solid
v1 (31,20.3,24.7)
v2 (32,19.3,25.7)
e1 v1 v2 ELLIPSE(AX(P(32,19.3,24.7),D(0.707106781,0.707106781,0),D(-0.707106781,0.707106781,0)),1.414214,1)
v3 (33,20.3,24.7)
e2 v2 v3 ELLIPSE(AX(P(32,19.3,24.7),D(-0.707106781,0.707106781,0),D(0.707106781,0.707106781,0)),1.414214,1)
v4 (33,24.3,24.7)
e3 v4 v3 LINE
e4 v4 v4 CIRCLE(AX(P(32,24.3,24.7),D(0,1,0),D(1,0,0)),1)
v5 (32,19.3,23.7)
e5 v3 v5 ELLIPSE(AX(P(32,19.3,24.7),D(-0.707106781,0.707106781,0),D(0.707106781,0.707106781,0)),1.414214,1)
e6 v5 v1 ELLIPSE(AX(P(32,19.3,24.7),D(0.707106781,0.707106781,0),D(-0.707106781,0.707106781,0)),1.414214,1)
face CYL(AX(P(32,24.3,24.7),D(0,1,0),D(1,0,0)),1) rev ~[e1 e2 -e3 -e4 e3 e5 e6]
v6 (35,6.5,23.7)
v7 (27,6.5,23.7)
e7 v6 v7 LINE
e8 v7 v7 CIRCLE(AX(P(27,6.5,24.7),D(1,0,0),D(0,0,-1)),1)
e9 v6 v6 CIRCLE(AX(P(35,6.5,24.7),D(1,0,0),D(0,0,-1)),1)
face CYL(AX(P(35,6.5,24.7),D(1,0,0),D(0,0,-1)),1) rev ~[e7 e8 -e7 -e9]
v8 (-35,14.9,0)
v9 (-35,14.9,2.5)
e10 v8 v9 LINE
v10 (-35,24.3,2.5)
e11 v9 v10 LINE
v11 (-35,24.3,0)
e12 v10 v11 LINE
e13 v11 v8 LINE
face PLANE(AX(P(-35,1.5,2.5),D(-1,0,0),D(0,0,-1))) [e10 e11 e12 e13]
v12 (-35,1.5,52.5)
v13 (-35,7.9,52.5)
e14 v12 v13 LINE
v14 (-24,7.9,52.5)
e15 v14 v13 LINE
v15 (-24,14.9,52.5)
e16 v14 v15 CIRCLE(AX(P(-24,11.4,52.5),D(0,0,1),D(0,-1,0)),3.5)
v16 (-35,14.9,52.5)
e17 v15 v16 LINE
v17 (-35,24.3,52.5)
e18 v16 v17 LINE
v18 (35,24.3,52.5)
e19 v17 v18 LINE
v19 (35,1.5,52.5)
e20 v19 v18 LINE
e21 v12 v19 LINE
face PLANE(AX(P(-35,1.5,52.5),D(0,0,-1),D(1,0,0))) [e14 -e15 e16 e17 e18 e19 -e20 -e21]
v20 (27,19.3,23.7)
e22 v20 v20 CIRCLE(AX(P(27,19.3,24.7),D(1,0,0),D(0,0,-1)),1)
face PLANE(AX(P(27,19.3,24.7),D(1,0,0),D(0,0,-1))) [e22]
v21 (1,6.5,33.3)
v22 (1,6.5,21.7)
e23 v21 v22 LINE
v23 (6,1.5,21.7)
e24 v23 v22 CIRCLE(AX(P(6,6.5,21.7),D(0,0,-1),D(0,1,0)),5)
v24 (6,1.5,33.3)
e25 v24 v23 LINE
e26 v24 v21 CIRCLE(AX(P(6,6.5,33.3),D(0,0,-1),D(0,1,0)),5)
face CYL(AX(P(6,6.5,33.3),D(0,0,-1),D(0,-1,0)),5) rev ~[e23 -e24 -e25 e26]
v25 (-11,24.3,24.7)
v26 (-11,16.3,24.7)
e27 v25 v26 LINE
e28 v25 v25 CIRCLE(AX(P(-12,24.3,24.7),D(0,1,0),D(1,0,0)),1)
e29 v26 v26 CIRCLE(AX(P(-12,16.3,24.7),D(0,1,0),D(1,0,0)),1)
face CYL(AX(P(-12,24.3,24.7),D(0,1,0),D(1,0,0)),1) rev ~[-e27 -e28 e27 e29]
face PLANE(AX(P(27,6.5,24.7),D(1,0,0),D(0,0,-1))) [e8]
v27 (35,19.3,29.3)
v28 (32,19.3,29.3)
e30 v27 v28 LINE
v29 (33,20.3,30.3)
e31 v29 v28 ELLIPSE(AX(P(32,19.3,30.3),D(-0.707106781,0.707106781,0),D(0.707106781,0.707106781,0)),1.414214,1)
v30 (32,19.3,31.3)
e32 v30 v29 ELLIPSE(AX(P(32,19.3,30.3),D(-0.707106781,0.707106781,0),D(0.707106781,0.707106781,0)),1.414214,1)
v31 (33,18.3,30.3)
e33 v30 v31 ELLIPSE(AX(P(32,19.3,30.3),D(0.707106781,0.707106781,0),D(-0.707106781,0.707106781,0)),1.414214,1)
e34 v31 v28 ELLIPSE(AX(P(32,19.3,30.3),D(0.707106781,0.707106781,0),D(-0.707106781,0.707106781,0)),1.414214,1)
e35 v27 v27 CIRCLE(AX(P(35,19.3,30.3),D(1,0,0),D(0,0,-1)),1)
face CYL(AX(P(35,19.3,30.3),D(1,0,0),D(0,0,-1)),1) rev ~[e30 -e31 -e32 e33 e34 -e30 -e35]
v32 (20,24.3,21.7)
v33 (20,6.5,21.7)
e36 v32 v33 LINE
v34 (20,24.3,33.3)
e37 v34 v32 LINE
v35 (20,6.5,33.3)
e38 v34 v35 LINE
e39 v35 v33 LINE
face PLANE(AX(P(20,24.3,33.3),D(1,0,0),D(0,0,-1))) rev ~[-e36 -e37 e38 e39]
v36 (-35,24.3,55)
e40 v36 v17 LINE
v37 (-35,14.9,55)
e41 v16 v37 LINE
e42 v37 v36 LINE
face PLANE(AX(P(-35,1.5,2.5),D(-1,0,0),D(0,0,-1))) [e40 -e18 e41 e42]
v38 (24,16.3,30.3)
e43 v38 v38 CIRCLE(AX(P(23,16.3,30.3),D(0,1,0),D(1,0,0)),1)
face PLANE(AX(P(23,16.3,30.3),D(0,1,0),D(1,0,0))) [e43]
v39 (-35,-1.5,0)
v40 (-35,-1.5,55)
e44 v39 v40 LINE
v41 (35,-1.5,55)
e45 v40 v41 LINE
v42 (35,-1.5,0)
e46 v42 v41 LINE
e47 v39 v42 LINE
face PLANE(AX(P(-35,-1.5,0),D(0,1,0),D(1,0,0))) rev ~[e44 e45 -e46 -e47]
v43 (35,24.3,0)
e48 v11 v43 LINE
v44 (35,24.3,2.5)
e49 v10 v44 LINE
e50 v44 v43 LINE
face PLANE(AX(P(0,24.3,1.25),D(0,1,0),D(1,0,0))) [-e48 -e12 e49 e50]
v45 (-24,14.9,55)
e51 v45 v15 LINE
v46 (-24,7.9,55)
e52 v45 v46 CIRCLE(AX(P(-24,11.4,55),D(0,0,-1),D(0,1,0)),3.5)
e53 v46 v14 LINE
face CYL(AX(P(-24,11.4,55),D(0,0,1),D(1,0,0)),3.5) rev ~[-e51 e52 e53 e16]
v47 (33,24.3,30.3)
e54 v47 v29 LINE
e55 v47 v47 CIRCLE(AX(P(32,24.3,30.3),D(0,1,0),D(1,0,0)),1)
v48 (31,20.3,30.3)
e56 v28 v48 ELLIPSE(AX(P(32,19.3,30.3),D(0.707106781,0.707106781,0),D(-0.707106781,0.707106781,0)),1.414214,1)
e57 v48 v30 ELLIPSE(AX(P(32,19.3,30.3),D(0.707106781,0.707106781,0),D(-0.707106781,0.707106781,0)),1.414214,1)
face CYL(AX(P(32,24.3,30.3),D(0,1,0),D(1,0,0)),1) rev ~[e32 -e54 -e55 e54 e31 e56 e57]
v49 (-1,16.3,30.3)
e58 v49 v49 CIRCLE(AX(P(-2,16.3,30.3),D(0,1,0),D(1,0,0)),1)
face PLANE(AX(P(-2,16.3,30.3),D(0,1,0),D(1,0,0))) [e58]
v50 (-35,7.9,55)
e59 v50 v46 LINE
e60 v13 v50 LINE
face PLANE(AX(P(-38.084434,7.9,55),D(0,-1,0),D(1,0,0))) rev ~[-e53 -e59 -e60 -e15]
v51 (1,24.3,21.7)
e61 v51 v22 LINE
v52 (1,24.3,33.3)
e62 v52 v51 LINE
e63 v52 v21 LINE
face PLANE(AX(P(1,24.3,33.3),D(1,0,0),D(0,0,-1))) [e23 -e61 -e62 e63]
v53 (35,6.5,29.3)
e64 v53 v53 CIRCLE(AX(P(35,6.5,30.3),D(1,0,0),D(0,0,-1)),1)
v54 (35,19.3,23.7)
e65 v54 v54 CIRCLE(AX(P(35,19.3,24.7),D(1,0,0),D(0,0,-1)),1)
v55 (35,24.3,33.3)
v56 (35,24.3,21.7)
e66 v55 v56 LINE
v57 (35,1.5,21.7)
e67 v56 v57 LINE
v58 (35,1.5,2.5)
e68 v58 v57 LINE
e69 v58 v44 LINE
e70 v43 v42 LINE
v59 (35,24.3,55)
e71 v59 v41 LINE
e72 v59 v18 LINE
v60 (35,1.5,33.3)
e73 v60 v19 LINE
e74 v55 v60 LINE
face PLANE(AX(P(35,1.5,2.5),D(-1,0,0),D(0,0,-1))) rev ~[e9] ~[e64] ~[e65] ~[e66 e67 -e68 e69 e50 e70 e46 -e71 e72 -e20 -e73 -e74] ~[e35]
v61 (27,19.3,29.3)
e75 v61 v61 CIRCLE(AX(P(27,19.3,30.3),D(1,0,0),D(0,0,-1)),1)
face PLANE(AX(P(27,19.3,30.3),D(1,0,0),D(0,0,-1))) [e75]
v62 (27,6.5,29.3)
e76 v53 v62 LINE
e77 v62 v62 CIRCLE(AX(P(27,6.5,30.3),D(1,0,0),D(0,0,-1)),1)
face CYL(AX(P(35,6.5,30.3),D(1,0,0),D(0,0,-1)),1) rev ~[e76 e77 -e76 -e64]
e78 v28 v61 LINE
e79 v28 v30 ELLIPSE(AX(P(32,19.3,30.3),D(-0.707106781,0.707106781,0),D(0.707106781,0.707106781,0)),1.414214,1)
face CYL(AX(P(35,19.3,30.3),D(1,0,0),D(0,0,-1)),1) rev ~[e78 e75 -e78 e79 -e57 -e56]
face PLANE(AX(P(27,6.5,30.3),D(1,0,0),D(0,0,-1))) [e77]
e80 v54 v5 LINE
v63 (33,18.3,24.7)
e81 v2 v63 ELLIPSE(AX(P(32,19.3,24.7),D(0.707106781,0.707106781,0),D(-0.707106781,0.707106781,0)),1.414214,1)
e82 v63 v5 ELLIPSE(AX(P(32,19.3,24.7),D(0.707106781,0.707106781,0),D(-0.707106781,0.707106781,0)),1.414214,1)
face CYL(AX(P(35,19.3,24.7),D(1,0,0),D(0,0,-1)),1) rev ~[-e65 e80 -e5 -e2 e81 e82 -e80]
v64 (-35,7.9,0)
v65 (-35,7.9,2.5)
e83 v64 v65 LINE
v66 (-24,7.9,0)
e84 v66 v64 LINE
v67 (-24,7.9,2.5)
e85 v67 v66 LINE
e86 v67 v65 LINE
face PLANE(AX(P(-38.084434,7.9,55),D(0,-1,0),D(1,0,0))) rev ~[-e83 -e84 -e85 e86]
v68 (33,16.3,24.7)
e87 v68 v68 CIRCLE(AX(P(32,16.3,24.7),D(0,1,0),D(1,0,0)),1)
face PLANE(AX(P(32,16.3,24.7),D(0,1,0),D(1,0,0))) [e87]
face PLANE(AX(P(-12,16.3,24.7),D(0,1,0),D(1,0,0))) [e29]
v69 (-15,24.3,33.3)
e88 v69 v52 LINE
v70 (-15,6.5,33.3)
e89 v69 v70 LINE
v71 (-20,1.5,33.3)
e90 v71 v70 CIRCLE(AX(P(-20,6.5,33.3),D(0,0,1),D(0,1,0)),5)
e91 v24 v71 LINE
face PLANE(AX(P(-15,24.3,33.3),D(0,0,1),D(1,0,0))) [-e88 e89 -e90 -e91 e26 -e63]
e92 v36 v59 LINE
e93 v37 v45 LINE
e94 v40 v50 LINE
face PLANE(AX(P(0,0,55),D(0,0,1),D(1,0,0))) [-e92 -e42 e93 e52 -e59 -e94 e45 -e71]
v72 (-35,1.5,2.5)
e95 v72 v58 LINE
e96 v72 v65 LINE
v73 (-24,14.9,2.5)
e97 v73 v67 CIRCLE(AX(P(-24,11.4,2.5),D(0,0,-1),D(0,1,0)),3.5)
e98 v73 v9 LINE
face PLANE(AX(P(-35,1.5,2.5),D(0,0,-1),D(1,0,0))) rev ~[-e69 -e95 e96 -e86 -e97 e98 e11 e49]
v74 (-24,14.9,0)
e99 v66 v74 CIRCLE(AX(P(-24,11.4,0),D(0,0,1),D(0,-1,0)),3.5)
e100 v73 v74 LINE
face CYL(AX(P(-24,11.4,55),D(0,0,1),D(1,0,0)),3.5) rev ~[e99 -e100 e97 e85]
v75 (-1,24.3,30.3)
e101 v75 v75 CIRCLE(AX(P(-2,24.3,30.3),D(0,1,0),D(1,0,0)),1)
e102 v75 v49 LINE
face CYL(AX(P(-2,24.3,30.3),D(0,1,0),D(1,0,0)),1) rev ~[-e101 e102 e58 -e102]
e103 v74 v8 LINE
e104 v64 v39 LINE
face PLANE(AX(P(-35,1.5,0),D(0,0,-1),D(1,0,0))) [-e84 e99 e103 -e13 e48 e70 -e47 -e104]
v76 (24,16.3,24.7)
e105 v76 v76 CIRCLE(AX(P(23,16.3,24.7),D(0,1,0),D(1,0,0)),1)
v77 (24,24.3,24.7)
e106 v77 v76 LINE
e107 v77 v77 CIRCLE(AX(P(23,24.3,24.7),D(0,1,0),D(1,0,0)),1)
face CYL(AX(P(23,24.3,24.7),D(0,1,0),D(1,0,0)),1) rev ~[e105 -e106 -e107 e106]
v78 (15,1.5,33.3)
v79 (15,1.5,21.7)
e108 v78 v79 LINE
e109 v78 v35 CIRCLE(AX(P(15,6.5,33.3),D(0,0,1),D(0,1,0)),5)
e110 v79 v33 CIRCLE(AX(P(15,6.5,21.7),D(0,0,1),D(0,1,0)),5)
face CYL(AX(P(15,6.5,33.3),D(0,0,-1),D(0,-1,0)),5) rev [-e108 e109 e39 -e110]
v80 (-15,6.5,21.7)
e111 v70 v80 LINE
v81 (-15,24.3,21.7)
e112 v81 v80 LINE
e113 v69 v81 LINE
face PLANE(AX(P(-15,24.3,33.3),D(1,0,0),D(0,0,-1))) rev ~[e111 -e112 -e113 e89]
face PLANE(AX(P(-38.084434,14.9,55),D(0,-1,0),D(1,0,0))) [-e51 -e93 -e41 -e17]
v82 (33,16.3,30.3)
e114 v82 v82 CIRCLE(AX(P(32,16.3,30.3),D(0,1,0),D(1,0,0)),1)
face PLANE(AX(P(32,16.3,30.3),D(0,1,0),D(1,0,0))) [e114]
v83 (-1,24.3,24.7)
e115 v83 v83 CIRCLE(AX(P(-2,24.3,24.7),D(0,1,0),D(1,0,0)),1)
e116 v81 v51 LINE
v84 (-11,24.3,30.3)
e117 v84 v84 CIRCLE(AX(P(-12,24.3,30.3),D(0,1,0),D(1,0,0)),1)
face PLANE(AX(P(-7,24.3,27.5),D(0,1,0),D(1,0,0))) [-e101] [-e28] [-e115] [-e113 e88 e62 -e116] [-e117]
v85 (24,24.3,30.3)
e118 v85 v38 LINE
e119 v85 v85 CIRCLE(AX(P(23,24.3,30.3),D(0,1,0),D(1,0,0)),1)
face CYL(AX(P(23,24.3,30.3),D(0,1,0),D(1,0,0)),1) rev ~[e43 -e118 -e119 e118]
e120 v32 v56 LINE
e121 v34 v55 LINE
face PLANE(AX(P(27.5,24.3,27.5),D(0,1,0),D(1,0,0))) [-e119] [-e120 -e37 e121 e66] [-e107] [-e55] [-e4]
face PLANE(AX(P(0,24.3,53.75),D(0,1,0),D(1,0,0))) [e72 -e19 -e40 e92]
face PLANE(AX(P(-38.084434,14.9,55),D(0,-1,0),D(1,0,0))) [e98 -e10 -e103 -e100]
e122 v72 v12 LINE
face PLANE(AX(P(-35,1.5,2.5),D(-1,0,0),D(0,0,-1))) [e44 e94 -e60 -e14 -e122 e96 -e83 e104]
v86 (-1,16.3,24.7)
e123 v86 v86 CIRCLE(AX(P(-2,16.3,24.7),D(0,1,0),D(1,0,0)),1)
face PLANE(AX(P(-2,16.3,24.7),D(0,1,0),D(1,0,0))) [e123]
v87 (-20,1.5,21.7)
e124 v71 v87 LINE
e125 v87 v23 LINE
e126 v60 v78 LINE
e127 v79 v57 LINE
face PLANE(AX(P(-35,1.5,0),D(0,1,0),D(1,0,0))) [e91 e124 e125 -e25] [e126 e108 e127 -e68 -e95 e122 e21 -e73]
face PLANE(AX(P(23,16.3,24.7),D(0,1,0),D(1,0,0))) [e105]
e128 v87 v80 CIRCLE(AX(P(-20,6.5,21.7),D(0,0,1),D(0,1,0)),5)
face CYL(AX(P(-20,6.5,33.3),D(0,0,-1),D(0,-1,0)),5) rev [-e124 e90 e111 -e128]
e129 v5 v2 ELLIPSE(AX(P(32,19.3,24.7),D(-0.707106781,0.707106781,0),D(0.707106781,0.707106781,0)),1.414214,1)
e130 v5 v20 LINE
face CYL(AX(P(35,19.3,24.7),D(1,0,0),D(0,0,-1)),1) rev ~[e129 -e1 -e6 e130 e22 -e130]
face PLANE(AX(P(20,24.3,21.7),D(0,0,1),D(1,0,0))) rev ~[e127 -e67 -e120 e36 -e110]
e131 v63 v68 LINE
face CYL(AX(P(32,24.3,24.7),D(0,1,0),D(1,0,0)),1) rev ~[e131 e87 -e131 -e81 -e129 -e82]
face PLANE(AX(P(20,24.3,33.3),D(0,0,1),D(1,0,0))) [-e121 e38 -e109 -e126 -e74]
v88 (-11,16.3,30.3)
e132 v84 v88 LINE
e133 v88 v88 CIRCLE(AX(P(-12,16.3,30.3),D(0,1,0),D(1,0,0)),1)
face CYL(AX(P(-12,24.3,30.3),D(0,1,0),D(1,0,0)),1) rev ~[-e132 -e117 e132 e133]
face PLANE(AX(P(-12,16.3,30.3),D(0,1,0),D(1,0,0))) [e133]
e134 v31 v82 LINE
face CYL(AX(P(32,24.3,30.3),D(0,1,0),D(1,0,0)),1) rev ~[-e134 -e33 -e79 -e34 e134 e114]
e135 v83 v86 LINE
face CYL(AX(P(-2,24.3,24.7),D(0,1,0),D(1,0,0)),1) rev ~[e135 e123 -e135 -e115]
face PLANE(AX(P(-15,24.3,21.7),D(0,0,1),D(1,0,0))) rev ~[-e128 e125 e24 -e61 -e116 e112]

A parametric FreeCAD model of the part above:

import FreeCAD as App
import Part
import Sketcher
from FreeCAD import Vector
Q = App.Units.Quantity


def edges_at(feature, points):
    """Names of the edges that pass closest to the given points."""
    edges = feature.Shape.Edges
    near = lambda p: min(range(len(edges)), key=lambda i: edges[i].distToShape(Part.Vertex(*p))[0])
    return sorted({f"Edge{near(p) + 1}" for p in points})


def add_polygon(sketch, points):
    """Adds a closed chain of lines whose ends are joined by coincident constraints."""
    first, n = sketch.GeometryCount, len(points)
    for a, b in zip(points, points[1:] + points[:1]):
        sketch.addGeometry(Part.LineSegment(App.Vector(*a, 0), App.Vector(*b, 0)), False)
    for i in range(n):
        sketch.addConstraint(Sketcher.Constraint("Coincident", first + i, 2, first + (i + 1) % n, 1))

doc = App.newDocument("Part")
body = doc.addObject("PartDesign::Body", "Body")

sketch1 = body.newObject("Sketcher::SketchObject", "Sketch")
sketch1.AttachmentSupport = (doc.getObject("XY_Plane"), [""])
sketch1.MapMode = "FlatFace"
add_polygon(sketch1, [(-35, 1.5), (-35, -1.5), (35, -1.5), (35, 1.5)])
sketch1.addConstraint(Sketcher.Constraint("Vertical", 0))
sketch1.addConstraint(Sketcher.Constraint("Horizontal", 1))
sketch1.addConstraint(Sketcher.Constraint("Vertical", 2))
sketch1.addConstraint(Sketcher.Constraint("Horizontal", 3))
sketch1.addConstraint(Sketcher.Constraint("Symmetric", 0, 2, 2, 2, -1, 1))
sketch1.addConstraint(Sketcher.Constraint("DistanceX", 1, 1, 1, 2, Q("70 mm")))
sketch1.addConstraint(Sketcher.Constraint("DistanceY", 0, 2, 0, 1, Q("3 mm")))
pad1 = body.newObject("PartDesign::Pad", "Pad")
pad1.Profile = sketch1
pad1.Length = 55

sketch2 = body.newObject("Sketcher::SketchObject", "Sketch001")
sketch2.AttachmentSupport = (doc.getObject("XZ_Plane"), [""])
sketch2.MapMode = "FlatFace"
sketch2.AttachmentOffset = App.Placement(Vector(0, 0, -1.5), App.Rotation())
add_polygon(sketch2, [(-35, 0), (-35, 2.5), (35, 2.5), (35, 0)])
add_polygon(sketch2, [(-35, 52.5), (-35, 55), (35, 55), (35, 52.5)])
sketch2.addConstraint(Sketcher.Constraint("Vertical", 0))
sketch2.addConstraint(Sketcher.Constraint("Horizontal", 1))
sketch2.addConstraint(Sketcher.Constraint("Vertical", 2))
sketch2.addConstraint(Sketcher.Constraint("Horizontal", 3))
sketch2.addConstraint(Sketcher.Constraint("Vertical", 4))
sketch2.addConstraint(Sketcher.Constraint("Horizontal", 5))
sketch2.addConstraint(Sketcher.Constraint("Vertical", 6))
sketch2.addConstraint(Sketcher.Constraint("Horizontal", 7))
sketch2.addConstraint(Sketcher.Constraint("Symmetric", 2, 2, 3, 2, -1, 1))
sketch2.addConstraint(Sketcher.Constraint("Vertical", 3, 2, 4, 2))
sketch2.addConstraint(Sketcher.Constraint("Vertical", 2, 2, 5, 2))
sketch2.addConstraint(Sketcher.Constraint("Equal", 2, 4))
sketch2.addConstraint(Sketcher.Constraint("DistanceX", 1, 1, 1, 2, Q("70 mm")))
sketch2.addConstraint(Sketcher.Constraint("DistanceY", 0, 1, 0, 2, Q("2.5 mm")))
sketch2.addConstraint(Sketcher.Constraint("DistanceY", -1, 1, 4, 2, Q("55 mm")))
pad2 = body.newObject("PartDesign::Pad", "Pad001")
pad2.Profile = sketch2
pad2.Length = 22.8
pad2.Reversed = True

sketch3 = body.newObject("Sketcher::SketchObject", "Sketch002")
sketch3.AttachmentSupport = (doc.getObject("XY_Plane"), [""])
sketch3.MapMode = "FlatFace"
sketch3.AttachmentOffset = App.Placement(Vector(0, 0, 55), App.Rotation())
sketch3.addGeometry(Part.Circle(Vector(-24, 11.4, 0), Vector(0, 0, 1), 3.5), False)
sketch3.addConstraint(Sketcher.Constraint("Diameter", 0, Q("7 mm")))
sketch3.addConstraint(Sketcher.Constraint("DistanceX", 0, 3, -1, 1, Q("24 mm")))
sketch3.addConstraint(Sketcher.Constraint("DistanceY", -1, 1, 0, 3, Q("11.4 mm")))
pocket1 = body.newObject("PartDesign::Pocket", "Pocket")
pocket1.Profile = sketch3
pocket1.Length = 84.8

sketch4 = body.newObject("Sketcher::SketchObject", "Sketch003")
sketch4.AttachmentSupport = (doc.getObject("XZ_Plane"), [""])
sketch4.MapMode = "FlatFace"
sketch4.AttachmentOffset = App.Placement(Vector(0, 0, -24.3), App.Rotation())
add_polygon(sketch4, [(-15, 22), (-15, 33), (1, 33), (1, 22)])
add_polygon(sketch4, [(20, 22), (20, 33), (35, 33), (35, 22)])
sketch4.addConstraint(Sketcher.Constraint("Vertical", 0))
sketch4.addConstraint(Sketcher.Constraint("Horizontal", 1))
sketch4.addConstraint(Sketcher.Constraint("Vertical", 2))
sketch4.addConstraint(Sketcher.Constraint("Horizontal", 3))
sketch4.addConstraint(Sketcher.Constraint("Vertical", 4))
sketch4.addConstraint(Sketcher.Constraint("Horizontal", 5))
sketch4.addConstraint(Sketcher.Constraint("Vertical", 6))
sketch4.addConstraint(Sketcher.Constraint("Horizontal", 7))
sketch4.addConstraint(Sketcher.Constraint("Horizontal", 1, 2, 4, 2))
sketch4.addConstraint(Sketcher.Constraint("Horizontal", 3, 2, 6, 2))
sketch4.addConstraint(Sketcher.Constraint("DistanceX", 1, 1, 1, 2, Q("16 mm")))
sketch4.addConstraint(Sketcher.Constraint("DistanceX", 5, 1, 5, 2, Q("15 mm")))
sketch4.addConstraint(Sketcher.Constraint("DistanceY", 0, 1, 0, 2, Q("11.6 mm")))
sketch4.addConstraint(Sketcher.Constraint("DistanceX", 0, 2, -1, 1, Q("15 mm")))
sketch4.addConstraint(Sketcher.Constraint("DistanceX", -1, 1, 4, 2, Q("20 mm")))
sketch4.addConstraint(Sketcher.Constraint("DistanceY", -1, 1, 0, 2, Q("33.3 mm")))
pad3 = body.newObject("PartDesign::Pad", "Pad002")
pad3.Profile = sketch4
pad3.Length = 22.8

sketch5 = body.newObject("Sketcher::SketchObject", "Sketch004")
sketch5.AttachmentSupport = (doc.getObject("XZ_Plane"), [""])
sketch5.MapMode = "FlatFace"
sketch5.AttachmentOffset = App.Placement(Vector(0, 0, -24.3), App.Rotation())
sketch5.addGeometry(Part.Circle(Vector(-12, 24.7, 0), Vector(0, 0, 1), 1), False)
sketch5.addGeometry(Part.Circle(Vector(23, 30.3, 0), Vector(0, 0, 1), 1), False)
sketch5.addGeometry(Part.Circle(Vector(-2, 24.7, 0), Vector(0, 0, 1), 1), False)
sketch5.addGeometry(Part.Circle(Vector(-2, 30.3, 0), Vector(0, 0, 1), 1), False)
sketch5.addGeometry(Part.Circle(Vector(-12, 30.3, 0), Vector(0, 0, 1), 1), False)
sketch5.addGeometry(Part.Circle(Vector(23, 24.7, 0), Vector(0, 0, 1), 1), False)
sketch5.addGeometry(Part.Circle(Vector(32, 24.7, 0), Vector(0, 0, 1), 1), False)
sketch5.addGeometry(Part.Circle(Vector(32, 30.3, 0), Vector(0, 0, 1), 1), False)
sketch5.addConstraint(Sketcher.Constraint("Equal", 0, 1))
sketch5.addConstraint(Sketcher.Constraint("Equal", 1, 2))
sketch5.addConstraint(Sketcher.Constraint("Equal", 2, 3))
sketch5.addConstraint(Sketcher.Constraint("Equal", 3, 4))
sketch5.addConstraint(Sketcher.Constraint("Equal", 4, 5))
sketch5.addConstraint(Sketcher.Constraint("Equal", 5, 6))
sketch5.addConstraint(Sketcher.Constraint("Equal", 6, 7))
sketch5.addConstraint(Sketcher.Constraint("Horizontal", 0, 3, 2, 3))
sketch5.addConstraint(Sketcher.Constraint("Horizontal", 1, 3, 3, 3))
sketch5.addConstraint(Sketcher.Constraint("Horizontal", 3, 3, 4, 3))
sketch5.addConstraint(Sketcher.Constraint("Horizontal", 2, 3, 5, 3))
sketch5.addConstraint(Sketcher.Constraint("Horizontal", 5, 3, 6, 3))
sketch5.addConstraint(Sketcher.Constraint("Horizontal", 4, 3, 7, 3))
sketch5.addConstraint(Sketcher.Constraint("Vertical", 2, 3, 3, 3))
sketch5.addConstraint(Sketcher.Constraint("Vertical", 0, 3, 4, 3))
sketch5.addConstraint(Sketcher.Constraint("Vertical", 1, 3, 5, 3))
sketch5.addConstraint(Sketcher.Constraint("Vertical", 6, 3, 7, 3))
sketch5.addConstraint(Sketcher.Constraint("Diameter", 0, Q("2 mm")))
sketch5.addConstraint(Sketcher.Constraint("DistanceX", 0, 3, -1, 1, Q("12 mm")))
sketch5.addConstraint(Sketcher.Constraint("DistanceX", -1, 1, 1, 3, Q("23 mm")))
sketch5.addConstraint(Sketcher.Constraint("DistanceX", 2, 3, -1, 1, Q("2 mm")))
sketch5.addConstraint(Sketcher.Constraint("DistanceX", -1, 1, 6, 3, Q("32 mm")))
sketch5.addConstraint(Sketcher.Constraint("DistanceY", -1, 1, 0, 3, Q("24.7 mm")))
sketch5.addConstraint(Sketcher.Constraint("DistanceY", -1, 1, 1, 3, Q("30.3 mm")))
pocket2 = body.newObject("PartDesign::Pocket", "Pocket001")
pocket2.Profile = sketch5
pocket2.Length = 8
pocket2.Reversed = True

sketch6 = body.newObject("Sketcher::SketchObject", "Sketch005")
sketch6.AttachmentSupport = (doc.getObject("YZ_Plane"), [""])
sketch6.MapMode = "FlatFace"
sketch6.AttachmentOffset = App.Placement(Vector(0, 0, 35), App.Rotation())
sketch6.addGeometry(Part.Circle(Vector(19.3, 24.7, 0), Vector(0, 0, 1), 1), False)
sketch6.addGeometry(Part.Circle(Vector(19.3, 30.3, 0), Vector(0, 0, 1), 1), False)
sketch6.addGeometry(Part.Circle(Vector(6.5, 24.7, 0), Vector(0, 0, 1), 1), False)
sketch6.addGeometry(Part.Circle(Vector(6.5, 30.3, 0), Vector(0, 0, 1), 1), False)
sketch6.addConstraint(Sketcher.Constraint("Equal", 0, 1))
sketch6.addConstraint(Sketcher.Constraint("Equal", 1, 2))
sketch6.addConstraint(Sketcher.Constraint("Equal", 2, 3))
sketch6.addConstraint(Sketcher.Constraint("Horizontal", 0, 3, 2, 3))
sketch6.addConstraint(Sketcher.Constraint("Horizontal", 1, 3, 3, 3))
sketch6.addConstraint(Sketcher.Constraint("Vertical", 0, 3, 1, 3))
sketch6.addConstraint(Sketcher.Constraint("Vertical", 2, 3, 3, 3))
sketch6.addConstraint(Sketcher.Constraint("Diameter", 0, Q("2 mm")))
sketch6.addConstraint(Sketcher.Constraint("DistanceX", -1, 1, 0, 3, Q("19.3 mm")))
sketch6.addConstraint(Sketcher.Constraint("DistanceY", -1, 1, 0, 3, Q("24.7 mm")))
sketch6.addConstraint(Sketcher.Constraint("DistanceY", -1, 1, 1, 3, Q("30.3 mm")))
sketch6.addConstraint(Sketcher.Constraint("DistanceX", -1, 1, 2, 3, Q("6.5 mm")))
pocket3 = body.newObject("PartDesign::Pocket", "Pocket002")
pocket3.Profile = sketch6
pocket3.Length = 8
doc.recompute()

fillet = body.newObject("PartDesign::Fillet", "Fillet")
fillet.Base = (pocket3, edges_at(pocket3, [(1, 1.5, 27.5), (-15, 1.5, 27.5), (20, 1.5, 27.5)]))
fillet.Radius = 5

sketch7 = body.newObject("Sketcher::SketchObject", "Sketch006")
sketch7.AttachmentSupport = (doc.getObject("XY_Plane"), [""])
sketch7.MapMode = "FlatFace"
sketch7.AttachmentOffset = App.Placement(Vector(0, 0, 55), App.Rotation())
add_polygon(sketch7, [(-38, 15), (-38, 8), (-24, 8), (-24, 15)])
sketch7.addConstraint(Sketcher.Constraint("Vertical", 0))
sketch7.addConstraint(Sketcher.Constraint("Horizontal", 1))
sketch7.addConstraint(Sketcher.Constraint("Vertical", 2))
sketch7.addConstraint(Sketcher.Constraint("Horizontal", 3))
sketch7.addConstraint(Sketcher.Constraint("DistanceY", 0, 2, 0, 1, Q("7 mm")))
sketch7.addConstraint(Sketcher.Constraint("DistanceX", 1, 2, -1, 1, Q("24 mm")))
sketch7.addConstraint(Sketcher.Constraint("DistanceY", -1, 1, 0, 2, Q("7.9 mm")))
sketch7.addConstraint(Sketcher.Constraint("DistanceX", 1, 1, 1, 2, Q("14.084434 mm")))
pocket4 = body.newObject("PartDesign::Pocket", "Pocket003")
pocket4.Profile = sketch7
pocket4.Length = 66

doc.recompute()
